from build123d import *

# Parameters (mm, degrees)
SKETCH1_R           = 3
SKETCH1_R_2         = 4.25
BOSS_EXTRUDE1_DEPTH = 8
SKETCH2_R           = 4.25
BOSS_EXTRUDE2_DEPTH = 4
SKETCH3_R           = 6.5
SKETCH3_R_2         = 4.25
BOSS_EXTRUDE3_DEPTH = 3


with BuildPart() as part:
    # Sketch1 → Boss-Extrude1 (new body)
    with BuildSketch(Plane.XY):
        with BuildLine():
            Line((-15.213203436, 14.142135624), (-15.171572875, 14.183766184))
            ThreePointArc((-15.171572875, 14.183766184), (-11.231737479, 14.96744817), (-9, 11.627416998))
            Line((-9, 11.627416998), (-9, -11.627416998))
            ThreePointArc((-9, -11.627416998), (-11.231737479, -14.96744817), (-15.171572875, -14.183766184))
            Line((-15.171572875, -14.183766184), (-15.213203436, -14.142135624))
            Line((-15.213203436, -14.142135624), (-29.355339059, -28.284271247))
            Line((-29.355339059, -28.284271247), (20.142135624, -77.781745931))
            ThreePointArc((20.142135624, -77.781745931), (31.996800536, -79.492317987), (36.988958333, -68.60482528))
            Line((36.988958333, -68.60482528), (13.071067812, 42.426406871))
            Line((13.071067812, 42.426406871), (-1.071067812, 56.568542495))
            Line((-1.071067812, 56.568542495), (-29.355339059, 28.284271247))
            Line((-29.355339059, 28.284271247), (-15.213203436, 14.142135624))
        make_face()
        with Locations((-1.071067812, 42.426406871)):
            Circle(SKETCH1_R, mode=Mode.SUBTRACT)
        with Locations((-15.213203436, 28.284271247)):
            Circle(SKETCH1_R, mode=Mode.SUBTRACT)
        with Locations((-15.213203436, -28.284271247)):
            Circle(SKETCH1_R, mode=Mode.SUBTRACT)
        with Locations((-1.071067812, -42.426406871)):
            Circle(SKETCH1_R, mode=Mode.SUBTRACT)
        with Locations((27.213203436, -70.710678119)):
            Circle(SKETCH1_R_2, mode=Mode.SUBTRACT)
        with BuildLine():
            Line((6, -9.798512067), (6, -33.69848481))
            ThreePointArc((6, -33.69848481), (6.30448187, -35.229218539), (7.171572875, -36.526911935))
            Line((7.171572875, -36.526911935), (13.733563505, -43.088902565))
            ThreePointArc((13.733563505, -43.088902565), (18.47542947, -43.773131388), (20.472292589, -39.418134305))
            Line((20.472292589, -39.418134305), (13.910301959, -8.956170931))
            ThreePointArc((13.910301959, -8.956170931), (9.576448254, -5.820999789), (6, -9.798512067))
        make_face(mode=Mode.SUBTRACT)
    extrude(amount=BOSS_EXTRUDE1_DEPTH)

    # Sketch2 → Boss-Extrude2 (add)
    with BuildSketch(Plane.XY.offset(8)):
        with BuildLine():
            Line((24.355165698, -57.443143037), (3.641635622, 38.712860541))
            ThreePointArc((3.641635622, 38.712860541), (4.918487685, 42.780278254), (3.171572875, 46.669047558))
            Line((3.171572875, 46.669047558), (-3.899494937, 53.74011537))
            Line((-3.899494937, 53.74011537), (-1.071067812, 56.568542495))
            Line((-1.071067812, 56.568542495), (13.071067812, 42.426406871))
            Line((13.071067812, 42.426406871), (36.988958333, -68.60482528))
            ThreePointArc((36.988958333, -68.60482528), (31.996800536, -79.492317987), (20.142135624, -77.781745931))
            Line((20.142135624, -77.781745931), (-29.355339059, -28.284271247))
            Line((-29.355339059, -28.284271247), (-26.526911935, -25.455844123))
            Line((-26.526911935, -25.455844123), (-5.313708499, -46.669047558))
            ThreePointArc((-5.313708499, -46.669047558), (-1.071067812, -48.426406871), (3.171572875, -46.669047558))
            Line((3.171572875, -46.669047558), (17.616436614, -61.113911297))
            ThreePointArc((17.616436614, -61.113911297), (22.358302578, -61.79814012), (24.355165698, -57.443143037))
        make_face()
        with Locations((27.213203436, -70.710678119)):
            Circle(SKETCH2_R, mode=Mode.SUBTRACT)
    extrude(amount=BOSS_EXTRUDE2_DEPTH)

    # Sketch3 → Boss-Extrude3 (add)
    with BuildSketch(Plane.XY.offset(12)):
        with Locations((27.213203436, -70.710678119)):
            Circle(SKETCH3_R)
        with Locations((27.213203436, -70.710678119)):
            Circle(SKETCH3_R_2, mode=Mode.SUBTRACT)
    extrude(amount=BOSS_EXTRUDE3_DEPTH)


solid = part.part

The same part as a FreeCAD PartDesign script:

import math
import FreeCAD as App
import Part
import Sketcher
Q = App.Units.Quantity

doc = App.newDocument("Part")
body = doc.addObject("PartDesign::Body", "Body")

sketch1 = body.newObject("Sketcher::SketchObject", "Sketch")
sketch1.AttachmentSupport = (doc.getObject("XY_Plane"), [""])
sketch1.MapMode = "FlatFace"
sketch1.addGeometry([
    Part.LineSegment(App.Vector(-15.21, 14.14, 0), App.Vector(-15.17, 14.18, 0)),
    Part.ArcOfCircle(Part.Circle(App.Vector(-12.62, 11.63, 0), App.Vector(0, 0, 1), 3.62), math.radians(0), math.radians(135)),
    Part.LineSegment(App.Vector(-9, 11.63, 0), App.Vector(-9, -11.63, 0)),
    Part.ArcOfCircle(Part.Circle(App.Vector(-12.62, -11.63, 0), App.Vector(0, 0, 1), 3.62), math.radians(-135), math.radians(0)),
    Part.LineSegment(App.Vector(-15.17, -14.18, 0), App.Vector(-15.21, -14.14, 0)),
    Part.LineSegment(App.Vector(-15.21, -14.14, 0), App.Vector(-29.36, -28.28, 0)),
    Part.LineSegment(App.Vector(-29.36, -28.28, 0), App.Vector(20.14, -77.78, 0)),
    Part.ArcOfCircle(Part.Circle(App.Vector(27.21, -70.71, 0), App.Vector(0, 0, 1), 10), math.radians(-135), math.radians(12)),
    Part.LineSegment(App.Vector(36.99, -68.6, 0), App.Vector(13.07, 42.43, 0)),
    Part.LineSegment(App.Vector(13.07, 42.43, 0), App.Vector(-1.07, 56.57, 0)),
    Part.LineSegment(App.Vector(-1.07, 56.57, 0), App.Vector(-29.36, 28.28, 0)),
    Part.LineSegment(App.Vector(-29.36, 28.28, 0), App.Vector(-15.21, 14.14, 0)),
    Part.Circle(App.Vector(-15.21, -28.28, 0), App.Vector(0, 0, 1), 3),
    Part.Circle(App.Vector(-1.07, -42.43, 0), App.Vector(0, 0, 1), 3),
    Part.Circle(App.Vector(27.21, -70.71, 0), App.Vector(0, 0, 1), 4.25),
    Part.LineSegment(App.Vector(6, -33.7, 0), App.Vector(6, -9.8, 0)),
    Part.ArcOfCircle(Part.Circle(App.Vector(10, -9.8, 0), App.Vector(0, 0, 1), 4), math.radians(12), math.radians(180)),
    Part.LineSegment(App.Vector(13.91, -8.96, 0), App.Vector(20.47, -39.42, 0)),
    Part.ArcOfCircle(Part.Circle(App.Vector(16.56, -40.26, 0), App.Vector(0, 0, 1), 4), math.radians(-135), math.radians(12)),
    Part.LineSegment(App.Vector(13.73, -43.09, 0), App.Vector(7.17, -36.53, 0)),
    Part.ArcOfCircle(Part.Circle(App.Vector(10, -33.7, 0), App.Vector(0, 0, 1), 4), math.radians(-180), math.radians(-135)),
    Part.Circle(App.Vector(-15.21, 28.28, 0), App.Vector(0, 0, 1), 3),
    Part.Circle(App.Vector(-1.07, 42.43, 0), App.Vector(0, 0, 1), 3),
], False)
sketch1.addConstraint([
    Sketcher.Constraint("Tangent", 0, 2, 1, 2),
    Sketcher.Constraint("Tangent", 1, 1, 2, 1),
    Sketcher.Constraint("Tangent", 2, 2, 3, 2),
    Sketcher.Constraint("Tangent", 3, 1, 4, 1),
    Sketcher.Constraint("Coincident", 4, 2, 5, 1),
    Sketcher.Constraint("Coincident", 5, 2, 6, 1),
    Sketcher.Constraint("Tangent", 6, 2, 7, 1),
    Sketcher.Constraint("Tangent", 7, 2, 8, 1),
    Sketcher.Constraint("Coincident", 8, 2, 9, 1),
    Sketcher.Constraint("Coincident", 9, 2, 10, 1),
    Sketcher.Constraint("Coincident", 10, 2, 11, 1),
    Sketcher.Constraint("Coincident", 11, 2, 0, 1),
    Sketcher.Constraint("Tangent", 15, 2, 16, 2),
    Sketcher.Constraint("Tangent", 16, 1, 17, 1),
    Sketcher.Constraint("Tangent", 17, 2, 18, 2),
    Sketcher.Constraint("Tangent", 18, 1, 19, 1),
    Sketcher.Constraint("Tangent", 19, 2, 20, 2),
    Sketcher.Constraint("Tangent", 20, 1, 15, 1),
    Sketcher.Constraint("Vertical", 2),
    Sketcher.Constraint("Vertical", 15),
    Sketcher.Constraint("Coincident", 14, 3, 7, 3),
    Sketcher.Constraint("Equal", 1, 3),
    Sketcher.Constraint("Equal", 12, 13),
    Sketcher.Constraint("Equal", 16, 18),
    Sketcher.Constraint("Equal", 18, 20),
    Sketcher.Constraint("Equal", 13, 21),
    Sketcher.Constraint("Equal", 21, 22),
    Sketcher.Constraint("Symmetric", 12, 3, 21, 3, -1),
    Sketcher.Constraint("Symmetric", 13, 3, 22, 3, -1),
    Sketcher.Constraint("Symmetric", 0, 2, 3, 1, -1),
    Sketcher.Constraint("Symmetric", 5, 2, 10, 2, -1),
    Sketcher.Constraint("Perpendicular", 0, 4),
    Sketcher.Constraint("Perpendicular", 5, 6),
    Sketcher.Constraint("Parallel", 6, 9),
    Sketcher.Constraint("Perpendicular", 9, 10),
    Sketcher.Constraint("Perpendicular", 10, 11),
    Sketcher.Constraint("Parallel", 8, 17),
    Sketcher.Constraint("Parallel", 11, 19),
    Sketcher.Constraint("Horizontal", 12, 3, 5, 2),
    Sketcher.Constraint("Horizontal", 22, 3, 8, 2),
    Sketcher.Constraint("Vertical", 21, 3, 4, 2),
    Sketcher.Constraint("Vertical", 22, 3, 9, 2),
    Sketcher.Constraint("Vertical", 4, 2, 11, 2),
    Sketcher.Constraint("Equal", 5, 9),
    Sketcher.Constraint("Diameter", 12, 6.0),
    Sketcher.Constraint("Radius", 7, 10.0),
    Sketcher.Constraint("Radius", 16, 4.0),
    Sketcher.Constraint("Diameter", 14, 8.5),
    Sketcher.Constraint("Distance", 5, 20.0),
    Sketcher.Constraint("Distance", 6, 70.0),
    Sketcher.Constraint("Distance", 10, 40.0),
    Sketcher.Constraint("DistanceX", -1, 1, 16, 3, 10.0),
    Sketcher.Constraint("DistanceX", 1, 1, -1, 1, 9.0),
    Sketcher.Constraint("Radius", 1, 3.615224),
    Sketcher.Constraint("DistanceY", 2, 2, 2, 1, 23.254834),
    Sketcher.Constraint("DistanceY", 15, 1, 15, 2, 23.899973),
    Sketcher.Constraint("DistanceY", 7, 3, -1, 1, 70.710678),
    Sketcher.Constraint("DistanceY", 16, 1, -1, 1, 8.956171),
])
pad1 = body.newObject("PartDesign::Pad", "Pad")
pad1.Profile = sketch1
pad1.Length = 8

sketch2 = body.newObject("Sketcher::SketchObject", "Sketch001")
sketch2.AttachmentSupport = (doc.getObject("XY_Plane"), [""])
sketch2.MapMode = "FlatFace"
sketch2.AttachmentOffset = App.Placement(App.Vector(0, 0, 8), App.Rotation())
sketch2.addGeometry([
    Part.LineSegment(App.Vector(3.6, 38.7, 0), App.Vector(24.4, -57.4, 0)),
    Part.ArcOfCircle(Part.Circle(App.Vector(20.4, -58.3, 0), App.Vector(0, 0, 1), 4), math.radians(-135), math.radians(12)),
    Part.LineSegment(App.Vector(17.6, -61.1, 0), App.Vector(3.2, -46.7, 0)),
    Part.ArcOfCircle(Part.Circle(App.Vector(-1.1, -42.4, 0), App.Vector(0, 0, 1), 6), math.radians(-135), math.radians(-45)),
    Part.LineSegment(App.Vector(-5.3, -46.7, 0), App.Vector(-26.5, -25.5, 0)),
    Part.LineSegment(App.Vector(-26.5, -25.5, 0), App.Vector(-29.4, -28.3, 0)),
    Part.LineSegment(App.Vector(-29.4, -28.3, 0), App.Vector(20.1, -77.8, 0)),
    Part.ArcOfCircle(Part.Circle(App.Vector(27.2, -70.7, 0), App.Vector(0, 0, 1), 10), math.radians(-135), math.radians(12)),
    Part.LineSegment(App.Vector(37, -68.6, 0), App.Vector(13.1, 42.4, 0)),
    Part.LineSegment(App.Vector(13.1, 42.4, 0), App.Vector(-1.1, 56.6, 0)),
    Part.LineSegment(App.Vector(-1.1, 56.6, 0), App.Vector(-3.9, 53.7, 0)),
    Part.LineSegment(App.Vector(-3.9, 53.7, 0), App.Vector(3.2, 46.7, 0)),
    Part.ArcOfCircle(Part.Circle(App.Vector(-1.1, 42.4, 0), App.Vector(0, 0, 1), 6), math.radians(-38), math.radians(45)),
    Part.Circle(App.Vector(27.2, -70.7, 0), App.Vector(0, 0, 1), 4.2),
], False)
sketch2.addConstraint([
    Sketcher.Constraint("Tangent", 0, 2, 1, 2),
    Sketcher.Constraint("Tangent", 1, 1, 2, 1),
    Sketcher.Constraint("Coincident", 2, 2, 3, 2),
    Sketcher.Constraint("Tangent", 3, 1, 4, 1),
    Sketcher.Constraint("Coincident", 4, 2, 5, 1),
    Sketcher.Constraint("Coincident", 5, 2, 6, 1),
    Sketcher.Constraint("Tangent", 6, 2, 7, 1),
    Sketcher.Constraint("Tangent", 7, 2, 8, 1),
    Sketcher.Constraint("Coincident", 8, 2, 9, 1),
    Sketcher.Constraint("Coincident", 9, 2, 10, 1),
    Sketcher.Constraint("Coincident", 10, 2, 11, 1),
    Sketcher.Constraint("Tangent", 11, 2, 12, 2),
    Sketcher.Constraint("Coincident", 12, 1, 0, 1),
    Sketcher.Constraint("Coincident", 13, 3, 7, 3),
    Sketcher.Constraint("Equal", 3, 12),
    Sketcher.Constraint("Symmetric", 3, 3, 12, 3, -1),
    Sketcher.Constraint("Parallel", 2, 4),
    Sketcher.Constraint("Perpendicular", 4, 5),
    Sketcher.Constraint("Perpendicular", 5, 6),
    Sketcher.Constraint("Parallel", 0, 8),
    Sketcher.Constraint("Parallel", 6, 9),
    Sketcher.Constraint("Perpendicular", 9, 10),
    Sketcher.Constraint("Perpendicular", 10, 11),
    Sketcher.Constraint("Horizontal", 2, 2, 3, 1),
    Sketcher.Constraint("Horizontal", 12, 3, 8, 2),
    Sketcher.Constraint("Vertical", 12, 3, 9, 2),
    Sketcher.Constraint("Equal", 5, 10),
    Sketcher.Constraint("Radius", 1, 4.0),
    Sketcher.Constraint("Radius", 3, 6.0),
    Sketcher.Constraint("Radius", 7, 10.0),
    Sketcher.Constraint("Diameter", 13, 8.5),
    Sketcher.Constraint("Angle", 2, Q("135 deg")),
    Sketcher.Constraint("Distance", 4, 30.0),
    Sketcher.Constraint("Distance", 5, 4.0),
    Sketcher.Constraint("Distance", 6, 70.0),
    Sketcher.Constraint("DistanceX", 1, 1, 6, 2, 2.525699),
    Sketcher.Constraint("DistanceY", 7, 3, -1, 1, 70.710678),
    Sketcher.Constraint("DistanceX", 3, 1, -1, 1, 5.313708),
])
pad2 = body.newObject("PartDesign::Pad", "Pad001")
pad2.Profile = sketch2
pad2.Length = 4

sketch3 = body.newObject("Sketcher::SketchObject", "Sketch002")
sketch3.AttachmentSupport = (doc.getObject("XY_Plane"), [""])
sketch3.MapMode = "FlatFace"
sketch3.AttachmentOffset = App.Placement(App.Vector(0, 0, 12), App.Rotation())
sketch3.addGeometry([
    Part.Circle(App.Vector(27.2, -70.7, 0), App.Vector(0, 0, 1), 6.5),
    Part.Circle(App.Vector(27.2, -70.7, 0), App.Vector(0, 0, 1), 4.2),
], False)
sketch3.addConstraint([
    Sketcher.Constraint("Coincident", 1, 3, 0, 3),
    Sketcher.Constraint("Diameter", 0, 13.0),
    Sketcher.Constraint("Diameter", 1, 8.5),
    Sketcher.Constraint("DistanceY", 0, 3, -1, 1, 70.710678),
    Sketcher.Constraint("DistanceX", -1, 1, 0, 3, 27.213203),
])
pad3 = body.newObject("PartDesign::Pad", "Pad002")
pad3.Profile = sketch3
pad3.Length = 3

doc.recompute()
